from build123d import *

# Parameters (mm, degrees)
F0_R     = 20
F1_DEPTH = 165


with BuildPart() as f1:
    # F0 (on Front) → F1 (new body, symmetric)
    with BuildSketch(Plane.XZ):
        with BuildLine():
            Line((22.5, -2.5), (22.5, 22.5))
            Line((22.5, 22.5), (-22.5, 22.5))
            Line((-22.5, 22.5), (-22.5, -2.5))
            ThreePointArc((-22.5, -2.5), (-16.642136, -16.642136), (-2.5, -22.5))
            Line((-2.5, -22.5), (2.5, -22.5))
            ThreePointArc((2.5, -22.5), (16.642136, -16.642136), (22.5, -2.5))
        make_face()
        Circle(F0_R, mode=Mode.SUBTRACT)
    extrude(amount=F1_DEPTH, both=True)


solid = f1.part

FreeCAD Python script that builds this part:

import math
import FreeCAD as App
import Part
import Sketcher

V = App.Vector

doc = App.newDocument("Part")
body = doc.addObject("PartDesign::Body", "Body")

# Sketch on XZ plane
sketch1 = body.newObject("Sketcher::SketchObject", "Sketch")
sketch1.AttachmentSupport = (doc.getObject("XZ_Plane"), [""])
sketch1.MapMode = "FlatFace"
sketch1.addGeometry([
    Part.LineSegment(V(22, -2, 0), V(22, 22, 0)),  # 0
    Part.LineSegment(V(22, 22, 0), V(-22, 22, 0)),  # 1
    Part.LineSegment(V(-22, 22, 0), V(-22, -2, 0)),  # 2
    Part.ArcOfCircle(Part.Circle(V(-3, -3, 0), V(0, 0, 1), 20), math.radians(180), math.radians(270)),  # 3
    Part.LineSegment(V(-2, -22, 0), V(2, -22, 0)),  # 4
    Part.ArcOfCircle(Part.Circle(V(3, -3, 0), V(0, 0, 1), 20), math.radians(-90), math.radians(0)),  # 5
    Part.Circle(V(0, 0, 0), V(0, 0, 1), 20),  # 6
], False)
sketch1.addConstraint([
    Sketcher.Constraint("Coincident", 0, 2, 1, 1),
    Sketcher.Constraint("Coincident", 1, 2, 2, 1),
    Sketcher.Constraint("Tangent", 2, 2, 3, 1),
    Sketcher.Constraint("Tangent", 3, 2, 4, 1),
    Sketcher.Constraint("Tangent", 4, 2, 5, 1),
    Sketcher.Constraint("Tangent", 5, 2, 0, 1),
    Sketcher.Constraint("Vertical", 0),
    Sketcher.Constraint("Horizontal", 1),
    Sketcher.Constraint("Vertical", 2),
    Sketcher.Constraint("Horizontal", 4),
    Sketcher.Constraint("Coincident", 6, 3, -1, 1),
    Sketcher.Constraint("Equal", 3, 5),
    Sketcher.Constraint("Equal", 5, 6),
    Sketcher.Constraint("Diameter", 6, 40.0),
    Sketcher.Constraint("DistanceX", 1, 2, 1, 1, 45.0),
    Sketcher.Constraint("DistanceY", 0, 1, 0, 2, 25.0),
    Sketcher.Constraint("DistanceX", 3, 3, -1, 1, 2.500001),
    Sketcher.Constraint("DistanceY", 3, 3, -1, 1, 2.500001),
])
pad1 = body.newObject("PartDesign::Pad", "Pad")
pad1.Profile = sketch1
pad1.Length = 330
pad1.Midplane = True

doc.recompute()
